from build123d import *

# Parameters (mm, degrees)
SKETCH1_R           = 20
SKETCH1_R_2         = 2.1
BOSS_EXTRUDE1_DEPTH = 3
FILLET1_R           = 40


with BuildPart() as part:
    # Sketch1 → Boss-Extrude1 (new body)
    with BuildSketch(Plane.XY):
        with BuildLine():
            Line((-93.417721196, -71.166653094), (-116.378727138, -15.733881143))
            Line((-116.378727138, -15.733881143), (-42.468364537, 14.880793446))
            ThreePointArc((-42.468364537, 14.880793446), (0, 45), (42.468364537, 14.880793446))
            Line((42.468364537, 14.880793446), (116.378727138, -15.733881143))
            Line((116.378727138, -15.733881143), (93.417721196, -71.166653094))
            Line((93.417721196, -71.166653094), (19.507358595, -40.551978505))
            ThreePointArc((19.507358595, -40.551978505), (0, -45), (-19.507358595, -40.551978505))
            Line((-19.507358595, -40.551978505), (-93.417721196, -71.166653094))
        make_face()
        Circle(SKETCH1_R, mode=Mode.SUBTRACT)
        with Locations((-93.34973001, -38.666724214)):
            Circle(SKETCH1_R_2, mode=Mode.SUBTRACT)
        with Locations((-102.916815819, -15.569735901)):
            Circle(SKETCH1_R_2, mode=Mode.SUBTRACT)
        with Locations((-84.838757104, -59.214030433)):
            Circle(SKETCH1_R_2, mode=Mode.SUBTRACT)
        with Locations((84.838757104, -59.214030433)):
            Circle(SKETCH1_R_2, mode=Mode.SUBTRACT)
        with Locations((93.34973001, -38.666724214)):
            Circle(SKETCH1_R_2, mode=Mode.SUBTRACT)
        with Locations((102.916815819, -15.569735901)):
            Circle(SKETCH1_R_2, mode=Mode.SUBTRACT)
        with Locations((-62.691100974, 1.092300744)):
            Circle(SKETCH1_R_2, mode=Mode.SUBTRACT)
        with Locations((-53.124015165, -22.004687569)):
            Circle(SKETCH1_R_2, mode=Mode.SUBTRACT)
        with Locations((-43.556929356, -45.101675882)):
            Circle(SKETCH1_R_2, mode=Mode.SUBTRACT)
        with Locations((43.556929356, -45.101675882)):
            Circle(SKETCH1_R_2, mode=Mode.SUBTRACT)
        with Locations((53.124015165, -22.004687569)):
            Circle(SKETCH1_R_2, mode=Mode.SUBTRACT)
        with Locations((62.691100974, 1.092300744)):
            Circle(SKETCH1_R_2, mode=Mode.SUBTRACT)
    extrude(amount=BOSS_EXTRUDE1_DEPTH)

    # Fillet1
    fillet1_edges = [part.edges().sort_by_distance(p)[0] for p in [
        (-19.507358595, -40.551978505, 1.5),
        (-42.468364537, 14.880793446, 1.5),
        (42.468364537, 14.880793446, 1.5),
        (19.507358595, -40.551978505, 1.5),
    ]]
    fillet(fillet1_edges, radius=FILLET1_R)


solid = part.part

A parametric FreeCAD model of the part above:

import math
import FreeCAD as App
import Part
import Sketcher
from FreeCAD import Vector
Q = App.Units.Quantity


def edges_at(feature, points):
    """Names of the edges that pass closest to the given points."""
    edges = feature.Shape.Edges
    near = lambda p: min(range(len(edges)), key=lambda i: edges[i].distToShape(Part.Vertex(*p))[0])
    return sorted({f"Edge{near(p) + 1}" for p in points})

doc = App.newDocument("Part")
body = doc.addObject("PartDesign::Body", "Body")

# Sketch on XY plane
sketch1 = doc.addObject("Sketcher::SketchObject", "Sketch")
body.addObject(sketch1)
sketch1.AttachmentSupport = (doc.XY_Plane, [""])
sketch1.MapMode = "FlatFace"
sketch1.addGeometry([
    Part.LineSegment(Vector(-116.4, -15.7, 0), Vector(-93.4, -71.2, 0)),  # 0
    Part.LineSegment(Vector(-93.4, -71.2, 0), Vector(-19.5, -40.6, 0)),  # 1
    Part.ArcOfCircle(Part.Circle(Vector(0, 0, 0), Vector(0, 0, 1), 45), math.radians(-116), math.radians(-64)),  # 2
    Part.LineSegment(Vector(19.5, -40.6, 0), Vector(93.4, -71.2, 0)),  # 3
    Part.LineSegment(Vector(93.4, -71.2, 0), Vector(116.4, -15.7, 0)),  # 4
    Part.LineSegment(Vector(116.4, -15.7, 0), Vector(42.5, 14.9, 0)),  # 5
    Part.ArcOfCircle(Part.Circle(Vector(0, 0, 0), Vector(0, 0, 1), 45), math.radians(19), math.radians(161)),  # 6
    Part.LineSegment(Vector(-42.5, 14.9, 0), Vector(-116.4, -15.7, 0)),  # 7
    Part.Circle(Vector(84.8, -59.2, 0), Vector(0, 0, 1), 2.1),  # 8
    Part.Circle(Vector(43.6, -45.1, 0), Vector(0, 0, 1), 2.1),  # 9
    Part.Circle(Vector(93.3, -38.7, 0), Vector(0, 0, 1), 2.1),  # 10
    Part.Circle(Vector(53.1, -22, 0), Vector(0, 0, 1), 2.1),  # 11
    Part.Circle(Vector(-43.6, -45.1, 0), Vector(0, 0, 1), 2.1),  # 12
    Part.Circle(Vector(-84.8, -59.2, 0), Vector(0, 0, 1), 2.1),  # 13
    Part.Circle(Vector(-93.3, -38.7, 0), Vector(0, 0, 1), 2.1),  # 14
    Part.Circle(Vector(-53.1, -22, 0), Vector(0, 0, 1), 2.1),  # 15
    Part.Circle(Vector(102.9, -15.6, 0), Vector(0, 0, 1), 2.1),  # 16
    Part.Circle(Vector(62.7, 1.1, 0), Vector(0, 0, 1), 2.1),  # 17
    Part.Circle(Vector(-102.9, -15.6, 0), Vector(0, 0, 1), 2.1),  # 18
    Part.Circle(Vector(0, 0, 0), Vector(0, 0, 1), 20),  # 19
    Part.Circle(Vector(-62.7, 1.1, 0), Vector(0, 0, 1), 2.1),  # 20
], False)
sketch1.addConstraint([
    Sketcher.Constraint("Coincident", 0, 2, 1, 1),
    Sketcher.Constraint("Coincident", 1, 2, 2, 1),
    Sketcher.Constraint("Coincident", 2, 2, 3, 1),
    Sketcher.Constraint("Coincident", 3, 2, 4, 1),
    Sketcher.Constraint("Coincident", 4, 2, 5, 1),
    Sketcher.Constraint("Coincident", 5, 2, 6, 1),
    Sketcher.Constraint("Coincident", 6, 2, 7, 1),
    Sketcher.Constraint("Coincident", 7, 2, 0, 1),
    Sketcher.Constraint("Coincident", 2, 3, -1, 1),
    Sketcher.Constraint("Coincident", 6, 3, -1, 1),
    Sketcher.Constraint("Coincident", 19, 3, -1, 1),
    Sketcher.Constraint("Equal", 2, 6),
    Sketcher.Constraint("Equal", 8, 9),
    Sketcher.Constraint("Equal", 9, 10),
    Sketcher.Constraint("Equal", 10, 11),
    Sketcher.Constraint("Equal", 11, 12),
    Sketcher.Constraint("Equal", 12, 13),
    Sketcher.Constraint("Equal", 13, 14),
    Sketcher.Constraint("Equal", 14, 15),
    Sketcher.Constraint("Equal", 15, 16),
    Sketcher.Constraint("Equal", 16, 17),
    Sketcher.Constraint("Equal", 17, 18),
    Sketcher.Constraint("Equal", 18, 20),
    Sketcher.Constraint("Symmetric", 9, 3, 12, 3, -2),
    Sketcher.Constraint("Symmetric", 8, 3, 13, 3, -2),
    Sketcher.Constraint("Symmetric", 10, 3, 14, 3, -2),
    Sketcher.Constraint("Symmetric", 11, 3, 15, 3, -2),
    Sketcher.Constraint("Symmetric", 16, 3, 18, 3, -2),
    Sketcher.Constraint("Symmetric", 17, 3, 20, 3, -2),
    Sketcher.Constraint("Symmetric", 0, 2, 3, 2, -2),
    Sketcher.Constraint("Symmetric", 4, 2, 7, 2, -2),
    Sketcher.Constraint("Perpendicular", 0, 1),
    Sketcher.Constraint("Perpendicular", 3, 4),
    Sketcher.Constraint("Perpendicular", 4, 5),
    Sketcher.Constraint("Parallel", 1, 7),
    Sketcher.Constraint("Equal", 3, 5),
    Sketcher.Constraint("Diameter", 19, Q("40 mm")),
    Sketcher.Constraint("Radius", 2, Q("45 mm")),
    Sketcher.Constraint("Diameter", 8, Q("4.2 mm")),
    Sketcher.Constraint("Distance", 0, Q("60 mm")),
    Sketcher.Constraint("Distance", 1, Q("80 mm")),
    Sketcher.Constraint("Angle", 0, Q("-67.5 deg")),
    Sketcher.Constraint("DistanceX", -1, 1, 17, 3, Q("62.691101 mm")),
    Sketcher.Constraint("DistanceY", -1, 1, 17, 3, Q("1.092301 mm")),
    Sketcher.Constraint("DistanceX", 9, 3, 10, 3, Q("49.792801 mm")),
    Sketcher.Constraint("DistanceX", 11, 3, 16, 3, Q("49.792801 mm")),
    Sketcher.Constraint("DistanceY", 8, 3, -1, 1, Q("59.21403 mm")),
    Sketcher.Constraint("DistanceX", -1, 1, 9, 3, Q("43.556929 mm")),
    Sketcher.Constraint("DistanceY", 9, 3, 10, 3, Q("6.434952 mm")),
    Sketcher.Constraint("DistanceY", 9, 3, 11, 3, Q("23.096988 mm")),
    Sketcher.Constraint("DistanceX", 11, 3, 8, 3, Q("31.714742 mm")),
    Sketcher.Constraint("DistanceY", 10, 3, 16, 3, Q("23.096988 mm")),
    Sketcher.Constraint("DistanceY", 11, 3, 17, 3, Q("23.096988 mm")),
    Sketcher.Constraint("DistanceX", 16, 3, 4, 2, Q("13.461911 mm")),
])
pad1 = doc.addObject("PartDesign::Pad", "Pad")
body.addObject(pad1)
pad1.Profile = sketch1
pad1.Length = 3
doc.recompute()

fillet = doc.addObject("PartDesign::Fillet", "Fillet")
body.addObject(fillet)
fillet.Base = (pad1, edges_at(pad1, [
    (-19.507, -40.552, 1.5),
    (-42.468, 14.881, 1.5),
    (42.468, 14.881, 1.5),
    (19.507, -40.552, 1.5),
]))
fillet.Radius = 40

doc.recompute()
